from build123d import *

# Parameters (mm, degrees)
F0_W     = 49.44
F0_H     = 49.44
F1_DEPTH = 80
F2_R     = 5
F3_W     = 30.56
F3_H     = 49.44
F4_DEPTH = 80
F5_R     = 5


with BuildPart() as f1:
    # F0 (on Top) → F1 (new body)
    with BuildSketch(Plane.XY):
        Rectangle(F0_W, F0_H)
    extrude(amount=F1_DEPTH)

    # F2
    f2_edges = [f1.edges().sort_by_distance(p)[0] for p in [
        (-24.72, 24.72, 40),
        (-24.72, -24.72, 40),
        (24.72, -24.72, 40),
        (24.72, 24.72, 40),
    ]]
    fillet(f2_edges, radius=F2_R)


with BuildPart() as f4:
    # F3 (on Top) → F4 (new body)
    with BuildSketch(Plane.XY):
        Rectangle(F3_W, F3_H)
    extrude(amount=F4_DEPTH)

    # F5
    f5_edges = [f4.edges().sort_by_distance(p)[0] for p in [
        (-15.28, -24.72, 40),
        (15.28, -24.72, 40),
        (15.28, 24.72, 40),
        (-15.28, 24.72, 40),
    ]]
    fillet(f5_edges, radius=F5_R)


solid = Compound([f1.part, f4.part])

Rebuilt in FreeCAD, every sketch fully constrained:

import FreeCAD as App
import Part
import Sketcher


def edges_at(feature, points):
    """Names of the edges that pass closest to the given points."""
    edges = feature.Shape.Edges
    near = lambda p: min(range(len(edges)), key=lambda i: edges[i].distToShape(Part.Vertex(*p))[0])
    return sorted({f"Edge{near(p) + 1}" for p in points})


def add_polygon(sketch, points):
    """Adds a closed chain of lines whose ends are joined by coincident constraints."""
    first, n = sketch.GeometryCount, len(points)
    for a, b in zip(points, points[1:] + points[:1]):
        sketch.addGeometry(Part.LineSegment(App.Vector(*a, 0), App.Vector(*b, 0)), False)
    for i in range(n):
        sketch.addConstraint(Sketcher.Constraint("Coincident", first + i, 2, first + (i + 1) % n, 1))

doc = App.newDocument("Part")
params = doc.addObject("Spreadsheet::Sheet", "Params")
for row, (alias, value) in enumerate([
    ("sketch1_width", "49.44 mm"),
    ("pad1_length", "80 mm"),
    ("fillet_radius", "5 mm"),
    ("sketch2_width", "30.56 mm"),
    ("sketch2_height", "49.44 mm"),
    ("pad2_length", "80 mm"),
    ("fillet2_radius", "5 mm"),
], start=1):
    params.set(f"A{row}", alias)
    params.set(f"B{row}", "=" + value)
    params.setAlias(f"B{row}", alias)

body = doc.addObject("PartDesign::Body", "Body")

sketch1 = body.newObject("Sketcher::SketchObject", "Sketch")
sketch1.AttachmentSupport = (doc.getObject("XY_Plane"), [""])
sketch1.MapMode = "FlatFace"
add_polygon(sketch1, [(-25, 25), (-25, -25), (25, -25), (25, 25)])
sketch1.addConstraint([
    Sketcher.Constraint("Vertical", 0),
    Sketcher.Constraint("Horizontal", 1),
    Sketcher.Constraint("Vertical", 2),
    Sketcher.Constraint("Horizontal", 3),
    Sketcher.Constraint("Symmetric", 0, 2, 2, 2, -1, 1),
    Sketcher.Constraint("Equal", 3, 0),
    Sketcher.Constraint("DistanceX", 1, 1, 1, 2, 49.44),
])
sketch1.setExpression("Constraints[10]", "Params.sketch1_width")
pad1 = body.newObject("PartDesign::Pad", "Pad")
pad1.Profile = sketch1
pad1.setExpression("Length", "Params.pad1_length")
doc.recompute()

fillet = body.newObject("PartDesign::Fillet", "Fillet")
fillet.Base = (pad1, edges_at(pad1, [
    (-24.72, 24.72, 40),
    (-24.72, -24.72, 40),
    (24.72, -24.72, 40),
    (24.72, 24.72, 40),
]))
fillet.setExpression("Radius", "Params.fillet_radius")
body2 = doc.addObject("PartDesign::Body", "Body001")

sketch2 = body2.newObject("Sketcher::SketchObject", "Sketch001")
sketch2.AttachmentSupport = (doc.getObject("XY_Plane001"), [""])
sketch2.MapMode = "FlatFace"
add_polygon(sketch2, [(-15, 25), (-15, -25), (15, -25), (15, 25)])
sketch2.addConstraint([
    Sketcher.Constraint("Vertical", 0),
    Sketcher.Constraint("Horizontal", 1),
    Sketcher.Constraint("Vertical", 2),
    Sketcher.Constraint("Horizontal", 3),
    Sketcher.Constraint("Symmetric", 0, 2, 2, 2, -1, 1),
    Sketcher.Constraint("DistanceX", 1, 1, 1, 2, 30.56),
    Sketcher.Constraint("DistanceY", 0, 2, 0, 1, 49.44),
])
sketch2.setExpression("Constraints[9]", "Params.sketch2_width")
sketch2.setExpression("Constraints[10]", "Params.sketch2_height")
pad2 = body2.newObject("PartDesign::Pad", "Pad001")
pad2.Profile = sketch2
pad2.setExpression("Length", "Params.pad2_length")
doc.recompute()

fillet2 = body2.newObject("PartDesign::Fillet", "Fillet001")
fillet2.Base = (pad2, edges_at(pad2, [
    (-15.28, -24.72, 40),
    (15.28, -24.72, 40),
    (15.28, 24.72, 40),
    (-15.28, 24.72, 40),
]))
fillet2.setExpression("Radius", "Params.fillet2_radius")

doc.recompute()
